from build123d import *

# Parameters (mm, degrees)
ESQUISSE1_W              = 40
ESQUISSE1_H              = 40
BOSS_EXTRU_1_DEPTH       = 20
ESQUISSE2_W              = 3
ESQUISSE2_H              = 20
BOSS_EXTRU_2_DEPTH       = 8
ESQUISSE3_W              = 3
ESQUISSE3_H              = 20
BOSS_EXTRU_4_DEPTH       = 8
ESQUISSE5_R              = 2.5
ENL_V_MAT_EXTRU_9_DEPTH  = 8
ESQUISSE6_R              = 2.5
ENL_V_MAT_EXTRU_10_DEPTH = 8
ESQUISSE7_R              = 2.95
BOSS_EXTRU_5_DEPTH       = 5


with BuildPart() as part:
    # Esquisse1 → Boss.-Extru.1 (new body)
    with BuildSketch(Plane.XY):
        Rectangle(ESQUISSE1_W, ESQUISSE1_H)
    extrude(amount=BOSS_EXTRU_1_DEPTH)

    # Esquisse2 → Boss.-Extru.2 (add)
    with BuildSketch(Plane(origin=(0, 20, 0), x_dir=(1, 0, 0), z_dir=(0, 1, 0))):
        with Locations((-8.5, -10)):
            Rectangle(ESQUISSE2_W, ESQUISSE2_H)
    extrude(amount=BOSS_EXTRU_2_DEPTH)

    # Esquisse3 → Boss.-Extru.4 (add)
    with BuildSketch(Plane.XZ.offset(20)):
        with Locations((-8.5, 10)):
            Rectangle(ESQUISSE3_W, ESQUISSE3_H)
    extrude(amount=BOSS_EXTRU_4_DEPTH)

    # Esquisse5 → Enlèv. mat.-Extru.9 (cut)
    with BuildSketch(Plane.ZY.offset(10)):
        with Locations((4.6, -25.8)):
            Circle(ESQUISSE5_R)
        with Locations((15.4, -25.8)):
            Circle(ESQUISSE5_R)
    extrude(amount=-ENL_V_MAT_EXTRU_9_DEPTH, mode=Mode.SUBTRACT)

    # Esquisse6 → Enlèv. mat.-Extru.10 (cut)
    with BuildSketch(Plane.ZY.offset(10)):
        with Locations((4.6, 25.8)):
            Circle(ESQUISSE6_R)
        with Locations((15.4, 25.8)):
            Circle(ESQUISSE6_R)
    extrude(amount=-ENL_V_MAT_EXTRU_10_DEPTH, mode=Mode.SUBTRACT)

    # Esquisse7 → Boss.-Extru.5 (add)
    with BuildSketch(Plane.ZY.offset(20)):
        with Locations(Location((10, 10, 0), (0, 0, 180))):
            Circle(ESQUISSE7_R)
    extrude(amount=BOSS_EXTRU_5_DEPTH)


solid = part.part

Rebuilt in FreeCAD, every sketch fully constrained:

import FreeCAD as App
import Part
import Sketcher

V = App.Vector
Q = App.Units.Quantity


def add_polygon(sketch, points):
    """Adds a closed chain of lines whose ends are joined by coincident constraints."""
    first, n = sketch.GeometryCount, len(points)
    for a, b in zip(points, points[1:] + points[:1]):
        sketch.addGeometry(Part.LineSegment(App.Vector(*a, 0), App.Vector(*b, 0)), False)
    for i in range(n):
        sketch.addConstraint(Sketcher.Constraint("Coincident", first + i, 2, first + (i + 1) % n, 1))

doc = App.newDocument("Part")
body = doc.addObject("PartDesign::Body", "Body")

# Sketch on XY plane
sketch1 = body.newObject("Sketcher::SketchObject", "Sketch")
sketch1.AttachmentSupport = (doc.getObject("XY_Plane"), [""])
sketch1.MapMode = "FlatFace"
add_polygon(sketch1, [(-20, 20), (-20, -20), (20, -20), (20, 20)])  # lines 0-3
sketch1.addConstraint([
    Sketcher.Constraint("Vertical", 0),
    Sketcher.Constraint("Horizontal", 1),
    Sketcher.Constraint("Vertical", 2),
    Sketcher.Constraint("Horizontal", 3),
    Sketcher.Constraint("Symmetric", 0, 2, 2, 2, -1, 1),
    Sketcher.Constraint("Equal", 3, 0),
    Sketcher.Constraint("DistanceX", 1, 1, 1, 2, Q("40 mm")),
])
pad1 = body.newObject("PartDesign::Pad", "Pad")
pad1.Profile = sketch1
pad1.Length = 20

# Sketch on XZ plane
sketch2 = body.newObject("Sketcher::SketchObject", "Sketch001")
sketch2.AttachmentSupport = (doc.getObject("XZ_Plane"), [""])
sketch2.MapMode = "FlatFace"
sketch2.AttachmentOffset = App.Placement(V(0, 0, -20), App.Rotation())
add_polygon(sketch2, [(-10, 0), (-10, 20), (-7, 20), (-7, 0)])  # lines 0-3
sketch2.addConstraint([
    Sketcher.Constraint("Vertical", 0),
    Sketcher.Constraint("Horizontal", 1),
    Sketcher.Constraint("Vertical", 2),
    Sketcher.Constraint("Horizontal", 3),
    Sketcher.Constraint("PointOnObject", 2, 2, -1),
    Sketcher.Constraint("DistanceX", 1, 1, 1, 2, Q("3 mm")),
    Sketcher.Constraint("DistanceY", 0, 1, 0, 2, Q("20 mm")),
    Sketcher.Constraint("DistanceX", 0, 2, -1, 1, Q("10 mm")),
])
pad2 = body.newObject("PartDesign::Pad", "Pad001")
pad2.Profile = sketch2
pad2.Length = 8
pad2.Reversed = True

# Sketch on XZ plane
sketch3 = body.newObject("Sketcher::SketchObject", "Sketch002")
sketch3.AttachmentSupport = (doc.getObject("XZ_Plane"), [""])
sketch3.MapMode = "FlatFace"
sketch3.AttachmentOffset = App.Placement(V(0, 0, 20), App.Rotation())
add_polygon(sketch3, [(-10, 20), (-10, 0), (-7, 0), (-7, 20)])  # lines 0-3
sketch3.addConstraint([
    Sketcher.Constraint("Vertical", 0),
    Sketcher.Constraint("Horizontal", 1),
    Sketcher.Constraint("Vertical", 2),
    Sketcher.Constraint("Horizontal", 3),
    Sketcher.Constraint("PointOnObject", 0, 2, -1),
    Sketcher.Constraint("DistanceX", 1, 1, 1, 2, Q("3 mm")),
    Sketcher.Constraint("DistanceY", 0, 2, 0, 1, Q("20 mm")),
    Sketcher.Constraint("DistanceX", 0, 2, -1, 1, Q("10 mm")),
])
pad3 = body.newObject("PartDesign::Pad", "Pad002")
pad3.Profile = sketch3
pad3.Length = 8

# Sketch on YZ plane
sketch4 = body.newObject("Sketcher::SketchObject", "Sketch003")
sketch4.AttachmentSupport = (doc.getObject("YZ_Plane"), [""])
sketch4.MapMode = "FlatFace"
sketch4.AttachmentOffset = App.Placement(V(0, 0, -10), App.Rotation())
sketch4.addGeometry([
    Part.Circle(V(-25.8, 4.6, 0), V(0, 0, 1), 2.5),
    Part.Circle(V(-25.8, 15.4, 0), V(0, 0, 1), 2.5),
], False)
sketch4.addConstraint([
    Sketcher.Constraint("Equal", 0, 1),
    Sketcher.Constraint("Vertical", 0, 3, 1, 3),
    Sketcher.Constraint("Diameter", 0, Q("5 mm")),
    Sketcher.Constraint("DistanceX", 0, 3, -1, 1, Q("25.8 mm")),
    Sketcher.Constraint("DistanceY", -1, 1, 0, 3, Q("4.6 mm")),
    Sketcher.Constraint("DistanceY", -1, 1, 1, 3, Q("15.4 mm")),
])
pocket1 = body.newObject("PartDesign::Pocket", "Pocket")
pocket1.Profile = sketch4
pocket1.Length = 8
pocket1.Reversed = True

# Sketch on YZ plane
sketch5 = body.newObject("Sketcher::SketchObject", "Sketch004")
sketch5.AttachmentSupport = (doc.getObject("YZ_Plane"), [""])
sketch5.MapMode = "FlatFace"
sketch5.AttachmentOffset = App.Placement(V(0, 0, -10), App.Rotation())
sketch5.addGeometry([
    Part.Circle(V(25.8, 4.6, 0), V(0, 0, 1), 2.5),
    Part.Circle(V(25.8, 15.4, 0), V(0, 0, 1), 2.5),
], False)
sketch5.addConstraint([
    Sketcher.Constraint("Equal", 0, 1),
    Sketcher.Constraint("Vertical", 0, 3, 1, 3),
    Sketcher.Constraint("Diameter", 0, Q("5 mm")),
    Sketcher.Constraint("DistanceX", -1, 1, 0, 3, Q("25.8 mm")),
    Sketcher.Constraint("DistanceY", -1, 1, 0, 3, Q("4.6 mm")),
    Sketcher.Constraint("DistanceY", -1, 1, 1, 3, Q("15.4 mm")),
])
pocket2 = body.newObject("PartDesign::Pocket", "Pocket001")
pocket2.Profile = sketch5
pocket2.Length = 8
pocket2.Reversed = True

# Sketch on YZ plane
sketch6 = body.newObject("Sketcher::SketchObject", "Sketch005")
sketch6.AttachmentSupport = (doc.getObject("YZ_Plane"), [""])
sketch6.MapMode = "FlatFace"
sketch6.AttachmentOffset = App.Placement(V(0, 0, -20), App.Rotation())
sketch6.addGeometry(Part.Circle(V(10, 10, 0), V(0, 0, 1), 2.95), False)
sketch6.addConstraint([
    Sketcher.Constraint("Diameter", 0, Q("5.9 mm")),
    Sketcher.Constraint("DistanceX", -1, 1, 0, 3, Q("10 mm")),
    Sketcher.Constraint("DistanceY", -1, 1, 0, 3, Q("10 mm")),
])
pad4 = body.newObject("PartDesign::Pad", "Pad003")
pad4.Profile = sketch6
pad4.Length = 5
pad4.Reversed = True

doc.recompute()
